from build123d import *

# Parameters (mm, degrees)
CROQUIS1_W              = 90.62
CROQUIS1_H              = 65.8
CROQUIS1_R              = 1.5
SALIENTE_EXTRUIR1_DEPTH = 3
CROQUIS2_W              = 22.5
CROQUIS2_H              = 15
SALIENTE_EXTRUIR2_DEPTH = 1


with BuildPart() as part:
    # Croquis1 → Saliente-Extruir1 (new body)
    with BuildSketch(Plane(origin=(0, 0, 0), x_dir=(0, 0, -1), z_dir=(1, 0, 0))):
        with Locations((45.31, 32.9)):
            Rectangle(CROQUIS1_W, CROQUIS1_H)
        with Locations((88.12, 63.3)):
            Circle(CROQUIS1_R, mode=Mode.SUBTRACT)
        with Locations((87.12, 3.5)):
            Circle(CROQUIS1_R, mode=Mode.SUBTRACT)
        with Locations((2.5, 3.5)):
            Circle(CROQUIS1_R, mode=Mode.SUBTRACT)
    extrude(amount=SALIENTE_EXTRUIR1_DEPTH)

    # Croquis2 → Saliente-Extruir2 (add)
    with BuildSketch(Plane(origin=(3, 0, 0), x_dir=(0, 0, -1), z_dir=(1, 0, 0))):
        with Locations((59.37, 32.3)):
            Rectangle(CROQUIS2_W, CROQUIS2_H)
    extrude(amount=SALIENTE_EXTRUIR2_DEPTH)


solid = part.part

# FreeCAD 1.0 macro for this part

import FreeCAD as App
import Part
import Sketcher

V = App.Vector

doc = App.newDocument("Part")
body = doc.addObject("PartDesign::Body", "Body")

# Sketch on YZ plane
sketch1 = body.newObject("Sketcher::SketchObject", "Sketch")
sketch1.AttachmentSupport = (doc.getObject("YZ_Plane"), [""])
sketch1.MapMode = "FlatFace"
sketch1.addGeometry([
    Part.LineSegment(V(65.8, 0, 0), V(0, 0, 0)),  # 0
    Part.LineSegment(V(0, 0, 0), V(0, -90.6, 0)),  # 1
    Part.LineSegment(V(0, -90.6, 0), V(65.8, -90.6, 0)),  # 2
    Part.LineSegment(V(65.8, -90.6, 0), V(65.8, 0, 0)),  # 3
    Part.Circle(V(3.5, -2.5, 0), V(0, 0, 1), 1.5),  # 4
    Part.Circle(V(3.5, -87.1, 0), V(0, 0, 1), 1.5),  # 5
    Part.Circle(V(63.3, -88.1, 0), V(0, 0, 1), 1.5),  # 6
], False)
sketch1.addConstraint([
    Sketcher.Constraint("Coincident", 0, 2, 1, 1),
    Sketcher.Constraint("Coincident", 1, 2, 2, 1),
    Sketcher.Constraint("Coincident", 2, 2, 3, 1),
    Sketcher.Constraint("Coincident", 3, 2, 0, 1),
    Sketcher.Constraint("Horizontal", 0),
    Sketcher.Constraint("Vertical", 1),
    Sketcher.Constraint("Horizontal", 2),
    Sketcher.Constraint("Vertical", 3),
    Sketcher.Constraint("Coincident", 0, 2, -1, 1),
    Sketcher.Constraint("Equal", 4, 5),
    Sketcher.Constraint("Equal", 5, 6),
    Sketcher.Constraint("Vertical", 4, 3, 5, 3),
    Sketcher.Constraint("Diameter", 4, 3.0),
    Sketcher.Constraint("DistanceX", 0, 2, 0, 1, 65.8),
    Sketcher.Constraint("DistanceY", 6, 3, 5, 3, 1.0),
    Sketcher.Constraint("DistanceY", 1, 2, 1, 1, 90.62),
    Sketcher.Constraint("DistanceX", -1, 1, 4, 3, 3.5),
    Sketcher.Constraint("DistanceY", 4, 3, -1, 1, 2.5),
    Sketcher.Constraint("DistanceX", -1, 1, 6, 3, 63.3),
    Sketcher.Constraint("DistanceY", 1, 2, 5, 3, 3.5),
])
pad1 = body.newObject("PartDesign::Pad", "Pad")
pad1.Profile = sketch1
pad1.Length = 3

# Sketch on YZ plane
sketch2 = body.newObject("Sketcher::SketchObject", "Sketch001")
sketch2.AttachmentSupport = (doc.getObject("YZ_Plane"), [""])
sketch2.MapMode = "FlatFace"
sketch2.AttachmentOffset = App.Placement(V(0, 0, 3), App.Rotation())
sketch2.addGeometry([
    Part.LineSegment(V(40, -48, 0), V(25, -48, 0)),
    Part.LineSegment(V(25, -48, 0), V(25, -71, 0)),
    Part.LineSegment(V(25, -71, 0), V(40, -71, 0)),
    Part.LineSegment(V(40, -71, 0), V(40, -48, 0)),
], False)
sketch2.addConstraint([
    Sketcher.Constraint("Coincident", 0, 2, 1, 1),
    Sketcher.Constraint("Coincident", 1, 2, 2, 1),
    Sketcher.Constraint("Coincident", 2, 2, 3, 1),
    Sketcher.Constraint("Coincident", 3, 2, 0, 1),
    Sketcher.Constraint("Horizontal", 0),
    Sketcher.Constraint("Vertical", 1),
    Sketcher.Constraint("Horizontal", 2),
    Sketcher.Constraint("Vertical", 3),
    Sketcher.Constraint("DistanceX", 0, 2, 0, 1, 15.0),
    Sketcher.Constraint("DistanceY", 1, 2, 1, 1, 22.5),
    Sketcher.Constraint("DistanceX", -1, 1, 0, 2, 24.8),
    Sketcher.Constraint("DistanceY", 0, 2, -1, 1, 48.12),
])
pad2 = body.newObject("PartDesign::Pad", "Pad001")
pad2.Profile = sketch2
pad2.Length = 1

doc.recompute()
